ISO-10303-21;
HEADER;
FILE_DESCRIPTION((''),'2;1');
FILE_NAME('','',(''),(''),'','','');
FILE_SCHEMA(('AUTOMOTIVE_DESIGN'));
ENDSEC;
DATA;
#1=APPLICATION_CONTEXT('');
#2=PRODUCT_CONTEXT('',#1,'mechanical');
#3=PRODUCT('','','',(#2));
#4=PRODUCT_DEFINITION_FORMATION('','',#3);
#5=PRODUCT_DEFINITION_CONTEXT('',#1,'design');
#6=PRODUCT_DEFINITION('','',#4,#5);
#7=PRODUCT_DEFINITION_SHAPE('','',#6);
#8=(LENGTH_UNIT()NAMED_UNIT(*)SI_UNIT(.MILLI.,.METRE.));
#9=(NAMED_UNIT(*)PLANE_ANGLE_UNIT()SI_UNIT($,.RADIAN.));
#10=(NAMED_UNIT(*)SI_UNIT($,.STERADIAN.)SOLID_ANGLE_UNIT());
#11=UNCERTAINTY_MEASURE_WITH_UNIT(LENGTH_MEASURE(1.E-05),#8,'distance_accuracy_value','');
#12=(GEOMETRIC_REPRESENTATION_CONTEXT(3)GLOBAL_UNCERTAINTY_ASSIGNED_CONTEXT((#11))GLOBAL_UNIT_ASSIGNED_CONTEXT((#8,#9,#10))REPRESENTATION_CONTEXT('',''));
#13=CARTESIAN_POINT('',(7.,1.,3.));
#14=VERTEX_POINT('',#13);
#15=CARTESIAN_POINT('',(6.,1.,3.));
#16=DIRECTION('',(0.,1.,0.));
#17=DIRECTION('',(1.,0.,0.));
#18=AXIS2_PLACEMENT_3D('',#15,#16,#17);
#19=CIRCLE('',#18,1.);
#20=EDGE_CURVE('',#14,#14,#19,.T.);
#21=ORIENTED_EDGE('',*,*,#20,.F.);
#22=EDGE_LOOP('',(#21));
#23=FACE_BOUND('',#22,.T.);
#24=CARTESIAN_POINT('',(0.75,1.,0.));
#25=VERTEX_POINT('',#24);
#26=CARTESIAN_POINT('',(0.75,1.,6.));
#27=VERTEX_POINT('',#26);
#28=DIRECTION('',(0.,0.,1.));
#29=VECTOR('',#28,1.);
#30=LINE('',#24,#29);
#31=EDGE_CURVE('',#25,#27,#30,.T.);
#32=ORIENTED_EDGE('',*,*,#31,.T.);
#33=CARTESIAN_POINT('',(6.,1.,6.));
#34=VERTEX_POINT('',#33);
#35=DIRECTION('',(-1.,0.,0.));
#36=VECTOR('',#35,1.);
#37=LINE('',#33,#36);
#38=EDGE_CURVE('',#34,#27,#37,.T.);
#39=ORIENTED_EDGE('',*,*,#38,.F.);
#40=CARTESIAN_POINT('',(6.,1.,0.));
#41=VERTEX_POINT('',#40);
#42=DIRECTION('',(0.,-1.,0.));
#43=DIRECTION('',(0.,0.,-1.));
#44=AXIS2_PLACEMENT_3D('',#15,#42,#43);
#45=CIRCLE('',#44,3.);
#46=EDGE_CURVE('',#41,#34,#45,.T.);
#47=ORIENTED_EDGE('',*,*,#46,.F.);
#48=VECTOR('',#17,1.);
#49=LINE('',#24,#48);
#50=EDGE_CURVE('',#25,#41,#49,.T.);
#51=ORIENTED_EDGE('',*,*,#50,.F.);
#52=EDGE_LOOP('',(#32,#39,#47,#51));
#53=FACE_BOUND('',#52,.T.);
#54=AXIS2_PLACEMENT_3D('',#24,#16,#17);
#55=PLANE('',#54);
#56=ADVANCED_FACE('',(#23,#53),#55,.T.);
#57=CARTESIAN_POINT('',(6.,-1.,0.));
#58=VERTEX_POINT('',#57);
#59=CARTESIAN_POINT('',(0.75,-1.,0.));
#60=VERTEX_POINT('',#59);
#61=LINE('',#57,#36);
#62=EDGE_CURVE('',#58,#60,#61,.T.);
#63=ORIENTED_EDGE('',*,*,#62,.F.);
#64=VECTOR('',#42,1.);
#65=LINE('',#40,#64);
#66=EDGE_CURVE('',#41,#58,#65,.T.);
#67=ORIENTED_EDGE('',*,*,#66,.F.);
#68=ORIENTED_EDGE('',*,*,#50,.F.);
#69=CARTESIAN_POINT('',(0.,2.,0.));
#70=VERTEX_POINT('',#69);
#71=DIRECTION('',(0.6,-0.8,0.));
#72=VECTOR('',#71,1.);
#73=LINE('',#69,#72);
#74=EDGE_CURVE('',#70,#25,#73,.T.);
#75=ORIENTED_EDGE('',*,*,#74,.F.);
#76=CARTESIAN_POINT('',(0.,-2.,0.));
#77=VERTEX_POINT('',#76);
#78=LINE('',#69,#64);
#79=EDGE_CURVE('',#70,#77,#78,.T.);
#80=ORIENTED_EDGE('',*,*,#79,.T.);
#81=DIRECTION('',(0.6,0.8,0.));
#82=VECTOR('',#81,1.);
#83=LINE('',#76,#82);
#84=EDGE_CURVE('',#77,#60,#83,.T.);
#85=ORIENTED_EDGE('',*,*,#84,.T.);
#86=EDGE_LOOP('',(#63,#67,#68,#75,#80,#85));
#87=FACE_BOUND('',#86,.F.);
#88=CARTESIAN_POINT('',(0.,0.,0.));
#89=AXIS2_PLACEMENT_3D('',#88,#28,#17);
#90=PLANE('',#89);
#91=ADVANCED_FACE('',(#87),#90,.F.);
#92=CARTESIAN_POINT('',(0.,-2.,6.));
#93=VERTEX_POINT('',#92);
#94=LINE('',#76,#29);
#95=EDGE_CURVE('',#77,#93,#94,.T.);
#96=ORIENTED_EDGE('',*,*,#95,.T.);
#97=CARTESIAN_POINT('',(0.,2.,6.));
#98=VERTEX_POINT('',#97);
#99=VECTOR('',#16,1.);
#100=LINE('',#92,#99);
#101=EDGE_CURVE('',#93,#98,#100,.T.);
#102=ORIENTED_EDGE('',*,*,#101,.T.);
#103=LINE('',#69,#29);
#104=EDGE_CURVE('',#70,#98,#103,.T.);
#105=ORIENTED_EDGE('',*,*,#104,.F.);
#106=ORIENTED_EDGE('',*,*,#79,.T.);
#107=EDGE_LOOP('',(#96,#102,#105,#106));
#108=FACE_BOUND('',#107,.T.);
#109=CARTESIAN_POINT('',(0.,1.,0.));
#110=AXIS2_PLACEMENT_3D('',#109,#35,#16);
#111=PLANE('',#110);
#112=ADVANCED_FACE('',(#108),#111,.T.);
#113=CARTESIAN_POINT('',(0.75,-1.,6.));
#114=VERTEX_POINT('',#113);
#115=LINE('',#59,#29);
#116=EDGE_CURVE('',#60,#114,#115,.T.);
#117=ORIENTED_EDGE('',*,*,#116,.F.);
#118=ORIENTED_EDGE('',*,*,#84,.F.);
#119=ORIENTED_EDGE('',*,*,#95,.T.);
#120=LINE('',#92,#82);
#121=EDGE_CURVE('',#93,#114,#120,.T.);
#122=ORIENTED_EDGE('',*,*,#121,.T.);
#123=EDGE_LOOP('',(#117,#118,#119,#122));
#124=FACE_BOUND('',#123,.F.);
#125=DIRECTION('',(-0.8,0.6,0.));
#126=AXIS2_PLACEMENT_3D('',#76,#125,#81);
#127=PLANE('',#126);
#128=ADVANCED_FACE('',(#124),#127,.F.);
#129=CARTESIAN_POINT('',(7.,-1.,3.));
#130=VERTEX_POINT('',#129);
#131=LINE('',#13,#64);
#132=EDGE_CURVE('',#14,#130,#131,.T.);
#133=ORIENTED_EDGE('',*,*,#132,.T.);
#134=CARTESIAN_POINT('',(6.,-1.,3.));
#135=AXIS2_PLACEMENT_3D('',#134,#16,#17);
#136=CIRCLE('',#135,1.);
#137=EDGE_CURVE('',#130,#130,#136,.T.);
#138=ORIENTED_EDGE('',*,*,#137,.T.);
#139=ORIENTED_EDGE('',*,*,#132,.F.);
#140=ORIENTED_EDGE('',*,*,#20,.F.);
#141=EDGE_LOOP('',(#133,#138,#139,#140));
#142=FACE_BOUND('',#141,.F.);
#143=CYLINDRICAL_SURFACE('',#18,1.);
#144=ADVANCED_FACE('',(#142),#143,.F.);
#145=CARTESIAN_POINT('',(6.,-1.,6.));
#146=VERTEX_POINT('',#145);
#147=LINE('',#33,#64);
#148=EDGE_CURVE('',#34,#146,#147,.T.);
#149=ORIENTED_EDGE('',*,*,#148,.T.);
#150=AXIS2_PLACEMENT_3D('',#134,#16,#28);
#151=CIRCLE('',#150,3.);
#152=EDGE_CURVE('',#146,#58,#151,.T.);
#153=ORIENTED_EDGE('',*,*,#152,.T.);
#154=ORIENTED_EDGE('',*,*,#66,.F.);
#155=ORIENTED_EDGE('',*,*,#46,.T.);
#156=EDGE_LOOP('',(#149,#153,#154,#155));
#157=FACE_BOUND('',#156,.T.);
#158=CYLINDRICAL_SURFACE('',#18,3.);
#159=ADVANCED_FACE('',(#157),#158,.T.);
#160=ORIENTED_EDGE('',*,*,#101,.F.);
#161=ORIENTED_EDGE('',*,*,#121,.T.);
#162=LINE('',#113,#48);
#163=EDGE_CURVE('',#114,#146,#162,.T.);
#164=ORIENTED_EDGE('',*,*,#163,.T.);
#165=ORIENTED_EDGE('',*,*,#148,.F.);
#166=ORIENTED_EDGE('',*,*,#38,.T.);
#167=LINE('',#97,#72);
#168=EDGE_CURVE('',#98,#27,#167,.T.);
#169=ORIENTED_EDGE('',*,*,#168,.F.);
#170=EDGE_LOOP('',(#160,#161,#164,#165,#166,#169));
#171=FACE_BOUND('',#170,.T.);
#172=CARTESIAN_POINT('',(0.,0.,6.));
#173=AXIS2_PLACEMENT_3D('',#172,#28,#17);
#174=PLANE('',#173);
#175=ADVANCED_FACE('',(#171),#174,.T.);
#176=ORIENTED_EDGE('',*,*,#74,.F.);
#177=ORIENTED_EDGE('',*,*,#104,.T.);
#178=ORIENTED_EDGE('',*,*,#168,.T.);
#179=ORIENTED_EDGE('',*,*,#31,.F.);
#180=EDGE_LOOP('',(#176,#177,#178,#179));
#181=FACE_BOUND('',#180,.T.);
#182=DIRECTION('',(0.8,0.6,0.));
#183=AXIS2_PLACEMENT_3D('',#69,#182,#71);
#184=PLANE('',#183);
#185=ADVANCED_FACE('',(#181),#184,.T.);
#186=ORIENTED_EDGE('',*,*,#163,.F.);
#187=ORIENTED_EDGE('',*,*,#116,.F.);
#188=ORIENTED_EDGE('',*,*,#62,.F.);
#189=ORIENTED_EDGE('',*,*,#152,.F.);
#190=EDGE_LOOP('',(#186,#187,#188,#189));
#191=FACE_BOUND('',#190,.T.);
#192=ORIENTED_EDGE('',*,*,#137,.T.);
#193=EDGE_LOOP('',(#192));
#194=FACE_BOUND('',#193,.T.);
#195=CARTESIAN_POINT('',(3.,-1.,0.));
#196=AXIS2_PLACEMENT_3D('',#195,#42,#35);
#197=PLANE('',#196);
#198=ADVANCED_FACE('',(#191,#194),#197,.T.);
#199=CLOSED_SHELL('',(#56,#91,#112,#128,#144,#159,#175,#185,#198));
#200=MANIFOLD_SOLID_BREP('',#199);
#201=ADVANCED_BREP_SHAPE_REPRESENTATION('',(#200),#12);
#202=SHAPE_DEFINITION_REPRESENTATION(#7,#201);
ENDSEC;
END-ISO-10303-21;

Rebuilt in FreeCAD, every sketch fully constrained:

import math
import FreeCAD as App
import Part
import Sketcher
from FreeCAD import Vector
Q = App.Units.Quantity

doc = App.newDocument("Part")
body = doc.addObject("PartDesign::Body", "Body")

sketch1 = body.newObject("Sketcher::SketchObject", "Sketch")
sketch1.AttachmentSupport = (doc.getObject("XY_Plane"), [""])
sketch1.MapMode = "FlatFace"
sketch1.addGeometry([
    Part.LineSegment(Vector(0, 2, 0), Vector(0, -2, 0)),
    Part.LineSegment(Vector(0, -2, 0), Vector(0.8, -1, 0)),
    Part.LineSegment(Vector(0.8, -1, 0), Vector(3, -1, 0)),
    Part.LineSegment(Vector(3, -1, 0), Vector(3, 1, 0)),
    Part.LineSegment(Vector(3, 1, 0), Vector(0.8, 1, 0)),
    Part.LineSegment(Vector(0.8, 1, 0), Vector(0, 2, 0)),
], False)
sketch1.addConstraint([
    Sketcher.Constraint("Coincident", 0, 2, 1, 1),
    Sketcher.Constraint("Coincident", 1, 2, 2, 1),
    Sketcher.Constraint("Coincident", 2, 2, 3, 1),
    Sketcher.Constraint("Coincident", 3, 2, 4, 1),
    Sketcher.Constraint("Coincident", 4, 2, 5, 1),
    Sketcher.Constraint("Coincident", 5, 2, 0, 1),
    Sketcher.Constraint("Vertical", 0),
    Sketcher.Constraint("Horizontal", 2),
    Sketcher.Constraint("Vertical", 3),
    Sketcher.Constraint("Horizontal", 4),
    Sketcher.Constraint("Symmetric", 0, 2, 5, 2, -1, 1),
    Sketcher.Constraint("Symmetric", 1, 2, 4, 2, -1),
    Sketcher.Constraint("DistanceY", 3, 1, 3, 2, Q("2 mm")),
    Sketcher.Constraint("DistanceY", 0, 2, -1, 1, Q("2 mm")),
    Sketcher.Constraint("DistanceX", -1, 1, 2, 2, Q("3 mm")),
    Sketcher.Constraint("DistanceX", 2, 1, 2, 2, Q("2.25 mm")),
])
pad1 = body.newObject("PartDesign::Pad", "Pad")
pad1.Profile = sketch1
pad1.Length = 6

sketch2 = body.newObject("Sketcher::SketchObject", "Sketch001")
sketch2.AttachmentSupport = (doc.getObject("XZ_Plane"), [""])
sketch2.MapMode = "FlatFace"
sketch2.AttachmentOffset = App.Placement(Vector(0, 0, -1), App.Rotation())
sketch2.addGeometry([
    Part.ArcOfCircle(Part.Circle(Vector(6, 3, 0), Vector(0, 0, 1), 3), math.radians(-90), math.radians(90)),
    Part.LineSegment(Vector(6, 0, 0), Vector(3, 0, 0)),
    Part.LineSegment(Vector(3, 0, 0), Vector(3, 6, 0)),
    Part.LineSegment(Vector(3, 6, 0), Vector(6, 6, 0)),
    Part.Circle(Vector(6, 3, 0), Vector(0, 0, 1), 1),
], False)
sketch2.addConstraint([
    Sketcher.Constraint("Tangent", 0, 1, 1, 1),
    Sketcher.Constraint("Coincident", 1, 2, 2, 1),
    Sketcher.Constraint("Coincident", 2, 2, 3, 1),
    Sketcher.Constraint("Tangent", 3, 2, 0, 2),
    Sketcher.Constraint("Horizontal", 1),
    Sketcher.Constraint("Vertical", 2),
    Sketcher.Constraint("Horizontal", 3),
    Sketcher.Constraint("Coincident", 4, 3, 0, 3),
    Sketcher.Constraint("PointOnObject", 0, 1, -1),
    Sketcher.Constraint("Diameter", 4, Q("2 mm")),
    Sketcher.Constraint("Radius", 0, Q("3 mm")),
    Sketcher.Constraint("DistanceX", -1, 1, 0, 3, Q("6 mm")),
    Sketcher.Constraint("DistanceX", 1, 2, 1, 1, Q("3 mm")),
])
pad2 = body.newObject("PartDesign::Pad", "Pad001")
pad2.Profile = sketch2
pad2.Length = 2

doc.recompute()
